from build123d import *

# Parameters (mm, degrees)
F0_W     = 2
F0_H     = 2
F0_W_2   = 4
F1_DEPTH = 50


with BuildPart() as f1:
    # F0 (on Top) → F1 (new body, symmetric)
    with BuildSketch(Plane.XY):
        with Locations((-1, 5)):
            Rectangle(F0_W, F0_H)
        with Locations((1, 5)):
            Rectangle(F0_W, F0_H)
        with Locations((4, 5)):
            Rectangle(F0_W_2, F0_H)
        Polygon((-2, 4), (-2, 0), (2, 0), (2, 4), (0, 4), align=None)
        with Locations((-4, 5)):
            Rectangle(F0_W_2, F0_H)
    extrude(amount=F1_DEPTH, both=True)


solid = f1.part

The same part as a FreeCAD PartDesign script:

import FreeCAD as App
import Part
import Sketcher

V = App.Vector

doc = App.newDocument("Part")
body = doc.addObject("PartDesign::Body", "Body")

sketch1 = doc.addObject("Sketcher::SketchObject", "Sketch")
body.addObject(sketch1)
sketch1.AttachmentSupport = (doc.XY_Plane, [""])
sketch1.MapMode = "FlatFace"
sketch1.addGeometry([
    Part.LineSegment(V(-2, 4, 0), V(-2, 0, 0)),
    Part.LineSegment(V(-2, 0, 0), V(2, 0, 0)),
    Part.LineSegment(V(2, 0, 0), V(2, 4, 0)),
    Part.LineSegment(V(2, 4, 0), V(6, 4, 0)),
    Part.LineSegment(V(6, 4, 0), V(6, 6, 0)),
    Part.LineSegment(V(6, 6, 0), V(-6, 6, 0)),
    Part.LineSegment(V(-6, 6, 0), V(-6, 4, 0)),
    Part.LineSegment(V(-6, 4, 0), V(-2, 4, 0)),
], False)
sketch1.addConstraint([
    Sketcher.Constraint("Coincident", 0, 2, 1, 1),
    Sketcher.Constraint("Coincident", 1, 2, 2, 1),
    Sketcher.Constraint("Coincident", 2, 2, 3, 1),
    Sketcher.Constraint("Coincident", 3, 2, 4, 1),
    Sketcher.Constraint("Coincident", 4, 2, 5, 1),
    Sketcher.Constraint("Coincident", 5, 2, 6, 1),
    Sketcher.Constraint("Coincident", 6, 2, 7, 1),
    Sketcher.Constraint("Coincident", 7, 2, 0, 1),
    Sketcher.Constraint("Vertical", 0),
    Sketcher.Constraint("Horizontal", 1),
    Sketcher.Constraint("Vertical", 2),
    Sketcher.Constraint("Horizontal", 3),
    Sketcher.Constraint("Vertical", 4),
    Sketcher.Constraint("Horizontal", 5),
    Sketcher.Constraint("Vertical", 6),
    Sketcher.Constraint("Horizontal", 7),
    Sketcher.Constraint("Symmetric", 0, 2, 1, 2, -1, 1),
    Sketcher.Constraint("Symmetric", 3, 2, 6, 2, -2),
    Sketcher.Constraint("Equal", 1, 3),
    Sketcher.Constraint("Equal", 7, 0),
    Sketcher.Constraint("DistanceX", 1, 1, 1, 2, 4.0),
    Sketcher.Constraint("DistanceY", 4, 1, 4, 2, 2.0),
])
pad1 = doc.addObject("PartDesign::Pad", "Pad")
body.addObject(pad1)
pad1.Profile = sketch1
pad1.Length = 100
pad1.Midplane = True

doc.recompute()
